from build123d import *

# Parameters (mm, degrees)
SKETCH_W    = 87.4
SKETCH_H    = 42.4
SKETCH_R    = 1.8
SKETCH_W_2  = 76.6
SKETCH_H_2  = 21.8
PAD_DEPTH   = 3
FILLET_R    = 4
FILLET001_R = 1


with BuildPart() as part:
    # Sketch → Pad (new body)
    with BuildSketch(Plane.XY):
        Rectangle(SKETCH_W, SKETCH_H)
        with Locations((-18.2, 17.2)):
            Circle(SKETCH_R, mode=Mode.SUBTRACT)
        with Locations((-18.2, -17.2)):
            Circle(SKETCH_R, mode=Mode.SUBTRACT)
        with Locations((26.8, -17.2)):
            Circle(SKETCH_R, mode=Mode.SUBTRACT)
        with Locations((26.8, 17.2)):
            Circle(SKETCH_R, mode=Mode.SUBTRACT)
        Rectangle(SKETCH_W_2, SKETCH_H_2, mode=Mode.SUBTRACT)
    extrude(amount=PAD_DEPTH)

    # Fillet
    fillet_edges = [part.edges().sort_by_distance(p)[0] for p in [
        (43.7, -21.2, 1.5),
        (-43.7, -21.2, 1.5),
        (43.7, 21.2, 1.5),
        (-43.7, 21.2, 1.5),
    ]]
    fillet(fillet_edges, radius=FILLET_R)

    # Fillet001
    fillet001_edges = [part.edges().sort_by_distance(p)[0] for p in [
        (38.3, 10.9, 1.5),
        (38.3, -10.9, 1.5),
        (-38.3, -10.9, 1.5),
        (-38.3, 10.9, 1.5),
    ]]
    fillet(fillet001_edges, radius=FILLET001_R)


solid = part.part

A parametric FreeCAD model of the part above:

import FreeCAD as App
import Part
import Sketcher
Q = App.Units.Quantity


def edges_at(feature, points):
    """Names of the edges that pass closest to the given points."""
    edges = feature.Shape.Edges
    near = lambda p: min(range(len(edges)), key=lambda i: edges[i].distToShape(Part.Vertex(*p))[0])
    return sorted({f"Edge{near(p) + 1}" for p in points})

doc = App.newDocument("Part")
body = doc.addObject("PartDesign::Body", "Body")

# Sketch on XY plane
sketch1 = body.newObject("Sketcher::SketchObject", "Sketch")
sketch1.AttachmentSupport = (doc.getObject("XY_Plane"), [""])
sketch1.MapMode = "FlatFace"
sketch1.addGeometry(Part.LineSegment(App.Vector(-43.7, 21.2, 0), App.Vector(-43.7, -21.2, 0)), False)
sketch1.addGeometry(Part.LineSegment(App.Vector(-43.7, -21.2, 0), App.Vector(43.7, -21.2, 0)), False)
sketch1.addGeometry(Part.LineSegment(App.Vector(43.7, -21.2, 0), App.Vector(43.7, 21.2, 0)), False)
sketch1.addGeometry(Part.LineSegment(App.Vector(43.7, 21.2, 0), App.Vector(-43.7, 21.2, 0)), False)
sketch1.addGeometry(Part.Circle(App.Vector(-18.2, -17.2, 0), App.Vector(0, 0, 1), 1.8), False)
sketch1.addGeometry(Part.Circle(App.Vector(26.8, -17.2, 0), App.Vector(0, 0, 1), 1.8), False)
sketch1.addGeometry(Part.Circle(App.Vector(-18.2, 17.2, 0), App.Vector(0, 0, 1), 1.8), False)
sketch1.addGeometry(Part.LineSegment(App.Vector(38.3, -10.9, 0), App.Vector(-38.3, -10.9, 0)), False)
sketch1.addGeometry(Part.LineSegment(App.Vector(-38.3, -10.9, 0), App.Vector(-38.3, 10.9, 0)), False)
sketch1.addGeometry(Part.LineSegment(App.Vector(-38.3, 10.9, 0), App.Vector(38.3, 10.9, 0)), False)
sketch1.addGeometry(Part.LineSegment(App.Vector(38.3, 10.9, 0), App.Vector(38.3, -10.9, 0)), False)
sketch1.addGeometry(Part.Circle(App.Vector(26.8, 17.2, 0), App.Vector(0, 0, 1), 1.8), False)
sketch1.addConstraint(Sketcher.Constraint("Coincident", 0, 2, 1, 1))
sketch1.addConstraint(Sketcher.Constraint("Coincident", 1, 2, 2, 1))
sketch1.addConstraint(Sketcher.Constraint("Coincident", 2, 2, 3, 1))
sketch1.addConstraint(Sketcher.Constraint("Coincident", 3, 2, 0, 1))
sketch1.addConstraint(Sketcher.Constraint("Coincident", 7, 2, 8, 1))
sketch1.addConstraint(Sketcher.Constraint("Coincident", 8, 2, 9, 1))
sketch1.addConstraint(Sketcher.Constraint("Coincident", 9, 2, 10, 1))
sketch1.addConstraint(Sketcher.Constraint("Coincident", 10, 2, 7, 1))
sketch1.addConstraint(Sketcher.Constraint("Vertical", 0))
sketch1.addConstraint(Sketcher.Constraint("Horizontal", 1))
sketch1.addConstraint(Sketcher.Constraint("Vertical", 2))
sketch1.addConstraint(Sketcher.Constraint("Horizontal", 3))
sketch1.addConstraint(Sketcher.Constraint("Horizontal", 7))
sketch1.addConstraint(Sketcher.Constraint("Vertical", 8))
sketch1.addConstraint(Sketcher.Constraint("Horizontal", 9))
sketch1.addConstraint(Sketcher.Constraint("Vertical", 10))
sketch1.addConstraint(Sketcher.Constraint("Equal", 4, 5))
sketch1.addConstraint(Sketcher.Constraint("Equal", 5, 6))
sketch1.addConstraint(Sketcher.Constraint("Equal", 6, 11))
sketch1.addConstraint(Sketcher.Constraint("Symmetric", 0, 2, 2, 2, -1, 1))
sketch1.addConstraint(Sketcher.Constraint("Symmetric", 7, 2, 9, 2, -1, 1))
sketch1.addConstraint(Sketcher.Constraint("Symmetric", 4, 3, 6, 3, -1))
sketch1.addConstraint(Sketcher.Constraint("Symmetric", 5, 3, 11, 3, -1))
sketch1.addConstraint(Sketcher.Constraint("Horizontal", 4, 3, 5, 3))
sketch1.addConstraint(Sketcher.Constraint("Diameter", 4, Q("3.6 mm")))
sketch1.addConstraint(Sketcher.Constraint("DistanceX", 1, 1, 1, 2, Q("87.4 mm")))
sketch1.addConstraint(Sketcher.Constraint("DistanceX", 7, 2, 7, 1, Q("76.6 mm")))
sketch1.addConstraint(Sketcher.Constraint("DistanceY", 0, 2, 0, 1, Q("42.4 mm")))
sketch1.addConstraint(Sketcher.Constraint("DistanceY", 8, 1, 8, 2, Q("21.8 mm")))
sketch1.addConstraint(Sketcher.Constraint("DistanceX", 4, 3, 5, 3, Q("45 mm")))
sketch1.addConstraint(Sketcher.Constraint("DistanceY", 0, 2, 4, 3, Q("4 mm")))
sketch1.addConstraint(Sketcher.Constraint("DistanceX", 4, 3, -1, 1, Q("18.2 mm")))
pad1 = body.newObject("PartDesign::Pad", "Pad")
pad1.Profile = sketch1
pad1.Length = 3
doc.recompute()

fillet = body.newObject("PartDesign::Fillet", "Fillet")
fillet.Base = (pad1, edges_at(pad1, [
    (43.7, -21.2, 1.5),
    (-43.7, -21.2, 1.5),
    (43.7, 21.2, 1.5),
    (-43.7, 21.2, 1.5),
]))
fillet.Radius = 4
doc.recompute()

fillet2 = body.newObject("PartDesign::Fillet", "Fillet001")
fillet2.Base = (fillet, edges_at(fillet, [
    (38.3, 10.9, 1.5),
    (38.3, -10.9, 1.5),
    (-38.3, -10.9, 1.5),
    (-38.3, 10.9, 1.5),
]))
fillet2.Radius = 1

doc.recompute()
